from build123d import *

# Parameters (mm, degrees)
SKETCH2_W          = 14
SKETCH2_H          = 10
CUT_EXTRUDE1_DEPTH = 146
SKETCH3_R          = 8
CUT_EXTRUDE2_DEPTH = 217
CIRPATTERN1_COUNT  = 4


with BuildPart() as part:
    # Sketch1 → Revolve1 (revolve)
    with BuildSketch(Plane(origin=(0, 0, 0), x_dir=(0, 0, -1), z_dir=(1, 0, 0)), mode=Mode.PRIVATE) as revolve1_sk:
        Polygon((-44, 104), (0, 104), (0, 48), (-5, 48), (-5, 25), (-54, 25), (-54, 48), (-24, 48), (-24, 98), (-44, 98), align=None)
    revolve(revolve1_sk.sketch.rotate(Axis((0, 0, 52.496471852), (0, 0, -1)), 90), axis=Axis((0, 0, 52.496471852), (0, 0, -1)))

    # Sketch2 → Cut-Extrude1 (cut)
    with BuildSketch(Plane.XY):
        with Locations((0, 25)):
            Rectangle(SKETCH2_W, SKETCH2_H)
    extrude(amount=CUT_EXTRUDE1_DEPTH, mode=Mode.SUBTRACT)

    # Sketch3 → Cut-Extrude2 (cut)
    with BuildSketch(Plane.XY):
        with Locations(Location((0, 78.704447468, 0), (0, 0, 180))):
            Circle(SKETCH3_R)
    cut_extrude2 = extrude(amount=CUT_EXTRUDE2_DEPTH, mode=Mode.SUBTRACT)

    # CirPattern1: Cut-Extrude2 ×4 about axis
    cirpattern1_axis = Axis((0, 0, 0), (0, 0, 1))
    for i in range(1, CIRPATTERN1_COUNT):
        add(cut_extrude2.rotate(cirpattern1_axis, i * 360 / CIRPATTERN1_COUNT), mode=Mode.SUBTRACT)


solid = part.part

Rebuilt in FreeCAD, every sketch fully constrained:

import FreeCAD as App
import Part
import Sketcher

V = App.Vector
Q = App.Units.Quantity


def add_polygon(sketch, points):
    """Adds a closed chain of lines whose ends are joined by coincident constraints."""
    first, n = sketch.GeometryCount, len(points)
    for a, b in zip(points, points[1:] + points[:1]):
        sketch.addGeometry(Part.LineSegment(App.Vector(*a, 0), App.Vector(*b, 0)), False)
    for i in range(n):
        sketch.addConstraint(Sketcher.Constraint("Coincident", first + i, 2, first + (i + 1) % n, 1))

doc = App.newDocument("Part")
body = doc.addObject("PartDesign::Body", "Body")

# Sketch on YZ plane
sketch1 = body.newObject("Sketcher::SketchObject", "Sketch")
sketch1.AttachmentSupport = (doc.getObject("YZ_Plane"), [""])
sketch1.MapMode = "FlatFace"
add_polygon(sketch1, [(104, 0), (104, 44), (98, 44), (98, 24), (48, 24), (48, 54), (25, 54), (25, 5), (48, 5), (48, 0)])  # lines 0-9
sketch1.addConstraint(Sketcher.Constraint("Vertical", 0))
sketch1.addConstraint(Sketcher.Constraint("Horizontal", 1))
sketch1.addConstraint(Sketcher.Constraint("Vertical", 2))
sketch1.addConstraint(Sketcher.Constraint("Horizontal", 3))
sketch1.addConstraint(Sketcher.Constraint("Vertical", 4))
sketch1.addConstraint(Sketcher.Constraint("Horizontal", 5))
sketch1.addConstraint(Sketcher.Constraint("Vertical", 6))
sketch1.addConstraint(Sketcher.Constraint("Horizontal", 7))
sketch1.addConstraint(Sketcher.Constraint("Vertical", 8))
sketch1.addConstraint(Sketcher.Constraint("Horizontal", 9))
sketch1.addConstraint(Sketcher.Constraint("PointOnObject", 8, 2, -1))
sketch1.addConstraint(Sketcher.Constraint("Vertical", 4, 2, 7, 2))
sketch1.addConstraint(Sketcher.Constraint("DistanceX", 1, 2, 1, 1, Q("6 mm")))
sketch1.addConstraint(Sketcher.Constraint("DistanceX", 3, 2, 3, 1, Q("50 mm")))
sketch1.addConstraint(Sketcher.Constraint("DistanceX", 5, 2, 5, 1, Q("23 mm")))
sketch1.addConstraint(Sketcher.Constraint("DistanceY", 0, 1, 0, 2, Q("44 mm")))
sketch1.addConstraint(Sketcher.Constraint("DistanceY", 2, 2, 2, 1, Q("20 mm")))
sketch1.addConstraint(Sketcher.Constraint("DistanceY", 4, 1, 4, 2, Q("30 mm")))
sketch1.addConstraint(Sketcher.Constraint("DistanceY", 6, 2, 6, 1, Q("49 mm")))
sketch1.addConstraint(Sketcher.Constraint("DistanceX", -1, 1, 0, 2, Q("104 mm")))
revolution = body.newObject("PartDesign::Revolution", "Revolution")
revolution.Profile = sketch1
revolution.ReferenceAxis = (sketch1, ["V_Axis"])
revolution.Angle = 360

# Sketch on XY plane
sketch2 = body.newObject("Sketcher::SketchObject", "Sketch001")
sketch2.AttachmentSupport = (doc.getObject("XY_Plane"), [""])
sketch2.MapMode = "FlatFace"
add_polygon(sketch2, [(-7, 30), (-7, 20), (7, 20), (7, 30)])  # lines 0-3
sketch2.addConstraint(Sketcher.Constraint("Vertical", 0))
sketch2.addConstraint(Sketcher.Constraint("Horizontal", 1))
sketch2.addConstraint(Sketcher.Constraint("Vertical", 2))
sketch2.addConstraint(Sketcher.Constraint("Horizontal", 3))
sketch2.addConstraint(Sketcher.Constraint("DistanceX", 1, 1, 1, 2, Q("14 mm")))
sketch2.addConstraint(Sketcher.Constraint("DistanceY", 0, 2, 0, 1, Q("10 mm")))
sketch2.addConstraint(Sketcher.Constraint("DistanceX", 0, 2, -1, 1, Q("7 mm")))
sketch2.addConstraint(Sketcher.Constraint("DistanceY", -1, 1, 0, 2, Q("20 mm")))
pocket1 = body.newObject("PartDesign::Pocket", "Pocket")
pocket1.Profile = sketch2
pocket1.Length = 146
pocket1.Reversed = True

# Sketch on XY plane
sketch3 = body.newObject("Sketcher::SketchObject", "Sketch002")
sketch3.AttachmentSupport = (doc.getObject("XY_Plane"), [""])
sketch3.MapMode = "FlatFace"
sketch3.addGeometry(Part.Circle(V(0, 78.704447, 0), V(0, 0, 1), 8), False)
sketch3.addConstraint(Sketcher.Constraint("PointOnObject", 0, 3, -2))
sketch3.addConstraint(Sketcher.Constraint("Diameter", 0, Q("16 mm")))
sketch3.addConstraint(Sketcher.Constraint("DistanceY", -1, 1, 0, 3, Q("78.704447 mm")))
pocket2 = body.newObject("PartDesign::Pocket", "Pocket001")
pocket2.Profile = sketch3
pocket2.Length = 217
pocket2.Reversed = True
doc.recompute()

polarpattern = body.newObject("PartDesign::PolarPattern", "PolarPattern")
polarpattern.Originals = [pocket2]
polarpattern.Axis = (doc.getObject("Z_Axis"), [""])
polarpattern.Angle = 360
polarpattern.Occurrences = 4
body.Tip = polarpattern

doc.recompute()
